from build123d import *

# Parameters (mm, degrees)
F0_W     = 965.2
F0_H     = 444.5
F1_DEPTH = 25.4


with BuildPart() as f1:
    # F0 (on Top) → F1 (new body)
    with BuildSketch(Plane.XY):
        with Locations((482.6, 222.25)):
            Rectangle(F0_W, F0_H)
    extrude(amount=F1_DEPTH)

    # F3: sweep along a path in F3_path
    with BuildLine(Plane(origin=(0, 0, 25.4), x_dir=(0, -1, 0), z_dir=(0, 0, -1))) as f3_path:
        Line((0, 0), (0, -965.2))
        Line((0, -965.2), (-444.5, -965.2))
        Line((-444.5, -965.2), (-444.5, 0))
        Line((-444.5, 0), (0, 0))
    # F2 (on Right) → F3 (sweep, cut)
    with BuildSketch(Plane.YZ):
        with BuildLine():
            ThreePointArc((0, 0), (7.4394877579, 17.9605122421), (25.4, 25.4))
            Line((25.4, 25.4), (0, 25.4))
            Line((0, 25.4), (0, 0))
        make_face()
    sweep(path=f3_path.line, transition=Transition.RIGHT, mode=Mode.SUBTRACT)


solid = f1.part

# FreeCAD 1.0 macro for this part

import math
import FreeCAD as App
import Part
import Sketcher
Q = App.Units.Quantity

doc = App.newDocument("Part")
params = doc.addObject("Spreadsheet::Sheet", "Params")
for row, (alias, value) in enumerate([
    ("sketch1_width", "38 in"),
    ("sketch1_height", "17.5 in"),
    ("pad1_length", "1 in"),
    ("sketch2_radius", "1 in"),
    ("sketch3_width", "38 in"),
    ("sketch3_height", "17.5 in"),
], start=1):
    params.set(f"A{row}", alias)
    params.set(f"B{row}", "=" + value)
    params.setAlias(f"B{row}", alias)

body = doc.addObject("PartDesign::Body", "Body")

# Sketch on XY plane
sketch1 = body.newObject("Sketcher::SketchObject", "Sketch")
sketch1.AttachmentSupport = (doc.getObject("XY_Plane"), [""])
sketch1.MapMode = "FlatFace"
sketch1.addGeometry(Part.LineSegment(App.Vector(0, 444, 0), App.Vector(0, 0, 0)), False)
sketch1.addGeometry(Part.LineSegment(App.Vector(0, 0, 0), App.Vector(965, 0, 0)), False)
sketch1.addGeometry(Part.LineSegment(App.Vector(965, 0, 0), App.Vector(965, 444, 0)), False)
sketch1.addGeometry(Part.LineSegment(App.Vector(965, 444, 0), App.Vector(0, 444, 0)), False)
sketch1.addConstraint(Sketcher.Constraint("Coincident", 0, 2, 1, 1))
sketch1.addConstraint(Sketcher.Constraint("Coincident", 1, 2, 2, 1))
sketch1.addConstraint(Sketcher.Constraint("Coincident", 2, 2, 3, 1))
sketch1.addConstraint(Sketcher.Constraint("Coincident", 3, 2, 0, 1))
sketch1.addConstraint(Sketcher.Constraint("Vertical", 0))
sketch1.addConstraint(Sketcher.Constraint("Horizontal", 1))
sketch1.addConstraint(Sketcher.Constraint("Vertical", 2))
sketch1.addConstraint(Sketcher.Constraint("Horizontal", 3))
sketch1.addConstraint(Sketcher.Constraint("Coincident", 0, 2, -1, 1))
sketch1.addConstraint(Sketcher.Constraint("DistanceX", 1, 1, 1, 2, Q("38 in")))
sketch1.addConstraint(Sketcher.Constraint("DistanceY", 0, 2, 0, 1, Q("17.5 in")))
sketch1.setExpression("Constraints[9]", "Params.sketch1_width")
sketch1.setExpression("Constraints[10]", "Params.sketch1_height")
pad1 = body.newObject("PartDesign::Pad", "Pad")
pad1.Profile = sketch1
pad1.setExpression("Length", "Params.pad1_length")

# Sketch on YZ plane
sketch2 = body.newObject("Sketcher::SketchObject", "Sketch001")
sketch2.AttachmentSupport = (doc.getObject("YZ_Plane"), [""])
sketch2.MapMode = "FlatFace"
sketch2.addGeometry(Part.ArcOfCircle(Part.Circle(App.Vector(25, 0, 0), App.Vector(0, 0, 1), 25), math.radians(90), math.radians(180)), False)
sketch2.addGeometry(Part.LineSegment(App.Vector(25, 25, 0), App.Vector(0, 25, 0)), False)
sketch2.addGeometry(Part.LineSegment(App.Vector(0, 25, 0), App.Vector(0, 0, 0)), False)
sketch2.addConstraint(Sketcher.Constraint("Tangent", 0, 1, 1, 1))
sketch2.addConstraint(Sketcher.Constraint("Coincident", 1, 2, 2, 1))
sketch2.addConstraint(Sketcher.Constraint("Tangent", 2, 2, 0, 2))
sketch2.addConstraint(Sketcher.Constraint("Horizontal", 1))
sketch2.addConstraint(Sketcher.Constraint("Vertical", 2))
sketch2.addConstraint(Sketcher.Constraint("Coincident", 2, 2, -1, 1))
sketch2.addConstraint(Sketcher.Constraint("Radius", 0, Q("1 in")))
sketch2.setExpression("Constraints[6]", "Params.sketch2_radius")

# Sketch on XY plane
sketch3 = body.newObject("Sketcher::SketchObject", "Sketch002")
sketch3.AttachmentSupport = (doc.getObject("XY_Plane"), [""])
sketch3.MapMode = "FlatFace"
sketch3.AttachmentOffset = App.Placement(App.Vector(0, 0, 1 * 25.4), App.Rotation())
sketch3.addGeometry(Part.LineSegment(App.Vector(0, 0, 0), App.Vector(965, 0, 0)), False)
sketch3.addGeometry(Part.LineSegment(App.Vector(965, 0, 0), App.Vector(965, 444, 0)), False)
sketch3.addGeometry(Part.LineSegment(App.Vector(965, 444, 0), App.Vector(0, 444, 0)), False)
sketch3.addGeometry(Part.LineSegment(App.Vector(0, 444, 0), App.Vector(0, 0, 0)), False)
sketch3.addConstraint(Sketcher.Constraint("Coincident", 0, 2, 1, 1))
sketch3.addConstraint(Sketcher.Constraint("Coincident", 1, 2, 2, 1))
sketch3.addConstraint(Sketcher.Constraint("Coincident", 2, 2, 3, 1))
sketch3.addConstraint(Sketcher.Constraint("Coincident", 3, 2, 0, 1))
sketch3.addConstraint(Sketcher.Constraint("Horizontal", 0))
sketch3.addConstraint(Sketcher.Constraint("Vertical", 1))
sketch3.addConstraint(Sketcher.Constraint("Horizontal", 2))
sketch3.addConstraint(Sketcher.Constraint("Vertical", 3))
sketch3.addConstraint(Sketcher.Constraint("Coincident", 3, 2, -1, 1))
sketch3.addConstraint(Sketcher.Constraint("DistanceX", 0, 1, 0, 2, Q("38 in")))
sketch3.addConstraint(Sketcher.Constraint("DistanceY", 1, 1, 1, 2, Q("17.5 in")))
sketch3.setExpression("Constraints[9]", "Params.sketch3_width")
sketch3.setExpression("Constraints[10]", "Params.sketch3_height")
doc.recompute()

subtractivepipe = body.newObject("PartDesign::SubtractivePipe", "SubtractivePipe")
subtractivepipe.Profile = sketch2
subtractivepipe.Spine = (sketch3, ["Edge1", "Edge2", "Edge3", "Edge4"])
subtractivepipe.Transition = "Right corner"

doc.recompute()
